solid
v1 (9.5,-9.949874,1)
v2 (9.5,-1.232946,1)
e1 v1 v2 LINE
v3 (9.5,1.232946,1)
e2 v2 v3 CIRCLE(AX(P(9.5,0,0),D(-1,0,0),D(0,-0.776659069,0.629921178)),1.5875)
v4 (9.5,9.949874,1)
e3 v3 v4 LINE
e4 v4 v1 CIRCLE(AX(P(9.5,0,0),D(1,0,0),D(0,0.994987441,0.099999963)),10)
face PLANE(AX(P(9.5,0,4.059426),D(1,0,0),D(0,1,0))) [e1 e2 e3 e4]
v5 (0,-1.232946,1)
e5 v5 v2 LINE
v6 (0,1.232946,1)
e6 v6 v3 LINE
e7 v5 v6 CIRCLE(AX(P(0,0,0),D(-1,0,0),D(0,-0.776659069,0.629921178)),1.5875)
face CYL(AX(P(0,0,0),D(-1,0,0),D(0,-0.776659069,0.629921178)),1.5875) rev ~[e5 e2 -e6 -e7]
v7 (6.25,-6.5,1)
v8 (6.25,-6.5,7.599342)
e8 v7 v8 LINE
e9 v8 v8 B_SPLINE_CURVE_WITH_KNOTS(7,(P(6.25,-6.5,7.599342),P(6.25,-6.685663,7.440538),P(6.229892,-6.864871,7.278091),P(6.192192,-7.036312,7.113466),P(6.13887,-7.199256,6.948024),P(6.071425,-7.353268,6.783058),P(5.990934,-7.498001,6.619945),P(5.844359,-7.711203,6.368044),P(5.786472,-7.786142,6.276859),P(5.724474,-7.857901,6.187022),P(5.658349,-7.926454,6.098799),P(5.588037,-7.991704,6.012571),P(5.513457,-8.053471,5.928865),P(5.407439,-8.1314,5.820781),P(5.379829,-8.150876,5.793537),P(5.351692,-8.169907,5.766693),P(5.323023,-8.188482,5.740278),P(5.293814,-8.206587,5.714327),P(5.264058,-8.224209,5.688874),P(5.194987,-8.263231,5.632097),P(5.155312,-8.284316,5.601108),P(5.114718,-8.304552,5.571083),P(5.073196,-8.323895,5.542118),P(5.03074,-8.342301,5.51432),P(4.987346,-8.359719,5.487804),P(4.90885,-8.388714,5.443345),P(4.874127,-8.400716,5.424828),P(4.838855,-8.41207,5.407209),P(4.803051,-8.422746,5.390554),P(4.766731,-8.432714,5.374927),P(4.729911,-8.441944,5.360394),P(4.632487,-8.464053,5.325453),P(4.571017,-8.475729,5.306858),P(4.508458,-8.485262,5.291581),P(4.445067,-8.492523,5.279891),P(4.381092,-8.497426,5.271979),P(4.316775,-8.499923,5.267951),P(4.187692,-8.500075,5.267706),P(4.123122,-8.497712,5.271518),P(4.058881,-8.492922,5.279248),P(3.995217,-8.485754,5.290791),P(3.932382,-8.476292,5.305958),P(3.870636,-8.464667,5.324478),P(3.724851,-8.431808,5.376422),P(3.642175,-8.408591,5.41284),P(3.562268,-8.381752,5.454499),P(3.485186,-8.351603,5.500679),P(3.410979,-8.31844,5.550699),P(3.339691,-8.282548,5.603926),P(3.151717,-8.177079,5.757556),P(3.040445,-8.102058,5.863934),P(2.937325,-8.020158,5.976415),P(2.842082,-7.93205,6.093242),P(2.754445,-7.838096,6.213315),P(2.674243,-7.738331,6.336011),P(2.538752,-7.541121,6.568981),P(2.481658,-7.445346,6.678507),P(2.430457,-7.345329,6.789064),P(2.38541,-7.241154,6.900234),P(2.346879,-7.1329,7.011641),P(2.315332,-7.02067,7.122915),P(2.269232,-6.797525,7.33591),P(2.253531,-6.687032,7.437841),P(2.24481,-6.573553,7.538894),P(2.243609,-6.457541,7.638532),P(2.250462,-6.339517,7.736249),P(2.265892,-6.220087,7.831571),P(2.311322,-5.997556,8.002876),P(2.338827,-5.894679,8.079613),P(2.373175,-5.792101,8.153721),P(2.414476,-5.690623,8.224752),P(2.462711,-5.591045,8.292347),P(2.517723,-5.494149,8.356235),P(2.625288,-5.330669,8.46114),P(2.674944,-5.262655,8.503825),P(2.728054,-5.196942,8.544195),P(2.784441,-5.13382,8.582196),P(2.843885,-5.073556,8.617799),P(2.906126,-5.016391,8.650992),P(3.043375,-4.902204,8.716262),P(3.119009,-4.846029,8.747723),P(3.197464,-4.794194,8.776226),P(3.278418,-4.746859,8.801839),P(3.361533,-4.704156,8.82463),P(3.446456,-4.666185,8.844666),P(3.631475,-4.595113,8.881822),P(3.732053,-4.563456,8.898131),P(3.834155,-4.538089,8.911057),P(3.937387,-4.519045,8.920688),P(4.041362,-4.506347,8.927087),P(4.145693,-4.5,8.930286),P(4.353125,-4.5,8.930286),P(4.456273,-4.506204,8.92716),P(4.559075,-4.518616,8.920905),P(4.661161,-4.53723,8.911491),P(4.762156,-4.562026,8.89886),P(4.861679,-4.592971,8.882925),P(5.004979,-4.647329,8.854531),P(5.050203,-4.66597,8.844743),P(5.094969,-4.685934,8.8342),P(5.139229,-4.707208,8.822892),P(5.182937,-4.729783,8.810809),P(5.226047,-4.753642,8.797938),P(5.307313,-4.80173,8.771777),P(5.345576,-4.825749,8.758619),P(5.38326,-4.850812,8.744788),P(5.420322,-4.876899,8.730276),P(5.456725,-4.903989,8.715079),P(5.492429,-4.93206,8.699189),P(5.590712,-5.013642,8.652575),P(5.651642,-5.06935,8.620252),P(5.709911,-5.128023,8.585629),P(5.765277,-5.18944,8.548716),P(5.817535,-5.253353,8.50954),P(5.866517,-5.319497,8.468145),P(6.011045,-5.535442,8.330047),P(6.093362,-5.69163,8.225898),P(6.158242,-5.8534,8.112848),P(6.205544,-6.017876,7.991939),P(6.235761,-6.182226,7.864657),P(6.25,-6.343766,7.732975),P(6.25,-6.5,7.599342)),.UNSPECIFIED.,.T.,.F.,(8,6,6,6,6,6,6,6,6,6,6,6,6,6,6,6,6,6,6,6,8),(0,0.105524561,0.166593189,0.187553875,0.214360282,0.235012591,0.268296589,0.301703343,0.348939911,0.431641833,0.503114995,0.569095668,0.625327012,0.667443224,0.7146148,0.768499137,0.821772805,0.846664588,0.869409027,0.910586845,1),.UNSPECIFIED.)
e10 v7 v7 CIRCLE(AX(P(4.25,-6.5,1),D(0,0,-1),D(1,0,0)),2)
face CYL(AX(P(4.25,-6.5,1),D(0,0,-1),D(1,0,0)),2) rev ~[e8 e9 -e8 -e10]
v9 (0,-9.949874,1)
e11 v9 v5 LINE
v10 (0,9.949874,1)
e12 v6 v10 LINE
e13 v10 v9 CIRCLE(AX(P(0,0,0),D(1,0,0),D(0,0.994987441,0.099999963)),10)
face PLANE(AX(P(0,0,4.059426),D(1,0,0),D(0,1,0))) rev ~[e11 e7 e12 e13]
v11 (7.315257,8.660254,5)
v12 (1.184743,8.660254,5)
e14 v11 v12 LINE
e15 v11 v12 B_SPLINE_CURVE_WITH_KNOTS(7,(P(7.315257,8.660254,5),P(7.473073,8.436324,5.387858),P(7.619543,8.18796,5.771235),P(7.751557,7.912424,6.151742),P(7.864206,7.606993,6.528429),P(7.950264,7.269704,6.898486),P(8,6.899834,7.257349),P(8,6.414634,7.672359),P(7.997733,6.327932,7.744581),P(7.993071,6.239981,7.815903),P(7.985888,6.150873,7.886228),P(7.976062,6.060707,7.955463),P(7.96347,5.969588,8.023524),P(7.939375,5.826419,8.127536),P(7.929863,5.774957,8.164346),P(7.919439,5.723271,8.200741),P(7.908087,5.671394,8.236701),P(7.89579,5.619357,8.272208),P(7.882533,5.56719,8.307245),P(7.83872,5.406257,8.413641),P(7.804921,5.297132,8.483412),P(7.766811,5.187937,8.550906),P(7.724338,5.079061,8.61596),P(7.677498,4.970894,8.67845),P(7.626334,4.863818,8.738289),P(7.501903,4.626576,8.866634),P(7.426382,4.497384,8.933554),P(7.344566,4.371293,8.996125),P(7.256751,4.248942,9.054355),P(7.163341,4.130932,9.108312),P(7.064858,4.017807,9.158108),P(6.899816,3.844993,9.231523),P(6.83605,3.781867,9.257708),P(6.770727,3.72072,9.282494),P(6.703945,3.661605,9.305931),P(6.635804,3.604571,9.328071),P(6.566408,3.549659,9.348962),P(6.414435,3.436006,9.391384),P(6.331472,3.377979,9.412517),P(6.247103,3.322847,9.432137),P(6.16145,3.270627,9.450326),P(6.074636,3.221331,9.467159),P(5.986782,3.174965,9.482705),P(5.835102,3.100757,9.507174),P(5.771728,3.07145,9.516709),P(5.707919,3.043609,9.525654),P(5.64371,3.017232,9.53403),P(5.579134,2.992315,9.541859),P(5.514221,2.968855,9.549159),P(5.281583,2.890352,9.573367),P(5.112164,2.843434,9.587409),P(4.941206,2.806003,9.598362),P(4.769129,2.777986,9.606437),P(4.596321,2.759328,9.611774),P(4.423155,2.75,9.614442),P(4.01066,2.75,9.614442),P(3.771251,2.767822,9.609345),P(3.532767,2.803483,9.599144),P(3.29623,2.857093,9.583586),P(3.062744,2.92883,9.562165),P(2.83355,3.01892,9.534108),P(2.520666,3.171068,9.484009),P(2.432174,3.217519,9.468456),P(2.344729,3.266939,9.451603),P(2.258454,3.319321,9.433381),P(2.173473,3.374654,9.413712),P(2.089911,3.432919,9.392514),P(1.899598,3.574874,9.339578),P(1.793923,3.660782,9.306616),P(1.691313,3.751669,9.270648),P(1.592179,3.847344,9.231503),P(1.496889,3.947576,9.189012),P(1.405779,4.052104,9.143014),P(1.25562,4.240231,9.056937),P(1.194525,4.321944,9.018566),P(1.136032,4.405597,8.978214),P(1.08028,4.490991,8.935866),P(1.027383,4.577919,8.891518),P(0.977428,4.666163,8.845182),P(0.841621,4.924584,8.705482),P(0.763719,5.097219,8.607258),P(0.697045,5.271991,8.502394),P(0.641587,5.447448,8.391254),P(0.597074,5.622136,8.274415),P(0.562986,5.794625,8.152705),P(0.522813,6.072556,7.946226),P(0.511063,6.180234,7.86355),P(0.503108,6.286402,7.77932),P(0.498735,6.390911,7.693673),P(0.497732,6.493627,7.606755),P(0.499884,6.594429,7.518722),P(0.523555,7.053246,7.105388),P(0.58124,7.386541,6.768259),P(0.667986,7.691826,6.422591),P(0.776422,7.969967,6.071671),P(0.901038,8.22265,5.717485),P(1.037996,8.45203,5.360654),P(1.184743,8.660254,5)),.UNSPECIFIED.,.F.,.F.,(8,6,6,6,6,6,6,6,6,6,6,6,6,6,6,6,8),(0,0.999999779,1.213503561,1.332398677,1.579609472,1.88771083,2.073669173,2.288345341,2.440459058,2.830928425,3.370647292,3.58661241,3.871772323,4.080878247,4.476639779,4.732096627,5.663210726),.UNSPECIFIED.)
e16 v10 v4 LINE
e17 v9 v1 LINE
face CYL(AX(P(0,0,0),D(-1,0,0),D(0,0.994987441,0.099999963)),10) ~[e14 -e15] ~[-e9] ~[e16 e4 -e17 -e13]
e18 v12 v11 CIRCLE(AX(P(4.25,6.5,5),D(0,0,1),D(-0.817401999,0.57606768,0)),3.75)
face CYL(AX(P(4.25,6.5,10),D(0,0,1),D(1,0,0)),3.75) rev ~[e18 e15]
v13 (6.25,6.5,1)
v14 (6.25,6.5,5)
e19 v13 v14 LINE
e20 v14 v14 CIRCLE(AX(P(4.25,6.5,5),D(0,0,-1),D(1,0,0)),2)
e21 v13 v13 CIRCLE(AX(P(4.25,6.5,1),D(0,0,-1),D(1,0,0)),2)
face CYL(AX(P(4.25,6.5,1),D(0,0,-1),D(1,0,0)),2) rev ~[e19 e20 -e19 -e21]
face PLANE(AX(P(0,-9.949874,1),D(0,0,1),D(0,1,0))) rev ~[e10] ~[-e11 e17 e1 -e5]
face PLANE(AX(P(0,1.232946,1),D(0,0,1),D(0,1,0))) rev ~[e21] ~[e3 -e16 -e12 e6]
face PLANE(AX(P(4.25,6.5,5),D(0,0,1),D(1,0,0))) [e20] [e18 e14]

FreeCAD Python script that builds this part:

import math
import FreeCAD as App
import Part
import Sketcher

V = App.Vector

doc = App.newDocument("Part")
body = doc.addObject("PartDesign::Body", "Body")

# Sketch on YZ plane
sketch1 = body.newObject("Sketcher::SketchObject", "Sketch")
sketch1.AttachmentSupport = (doc.getObject("YZ_Plane"), [""])
sketch1.MapMode = "FlatFace"
sketch1.addGeometry([
    Part.LineSegment(V(1.2, 1, 0), V(9.9, 1, 0)),
    Part.ArcOfCircle(Part.Circle(V(0, 0, 0), V(0, 0, 1), 10), math.radians(6), math.radians(174)),
    Part.LineSegment(V(-9.9, 1, 0), V(-1.2, 1, 0)),
    Part.ArcOfCircle(Part.Circle(V(0, 0, 0), V(0, 0, 1), 1.6), math.radians(39), math.radians(141)),
], False)
sketch1.addConstraint([
    Sketcher.Constraint("Coincident", 0, 2, 1, 1),
    Sketcher.Constraint("Coincident", 1, 2, 2, 1),
    Sketcher.Constraint("Coincident", 2, 2, 3, 2),
    Sketcher.Constraint("Coincident", 3, 1, 0, 1),
    Sketcher.Constraint("Horizontal", 0),
    Sketcher.Constraint("Horizontal", 2),
    Sketcher.Constraint("Coincident", 1, 3, -1, 1),
    Sketcher.Constraint("Coincident", 3, 3, -1, 1),
    Sketcher.Constraint("Horizontal", 0, 2, 1, 2),
    Sketcher.Constraint("Radius", 1, 10.0),
    Sketcher.Constraint("DistanceY", -1, 1, 0, 2, 1.0),
    Sketcher.Constraint("Radius", 3, 1.5875),
])
pad1 = body.newObject("PartDesign::Pad", "Pad")
pad1.Profile = sketch1
pad1.Length = 9.5

# Sketch on XY plane
sketch2 = body.newObject("Sketcher::SketchObject", "Sketch001")
sketch2.AttachmentSupport = (doc.getObject("XY_Plane"), [""])
sketch2.MapMode = "FlatFace"
sketch2.AttachmentOffset = App.Placement(V(0, 0, 1), App.Rotation())
sketch2.addGeometry([
    Part.Circle(V(4.2, -6.5, 0), V(0, 0, 1), 2),
    Part.Circle(V(4.2, 6.5, 0), V(0, 0, 1), 2),
], False)
sketch2.addConstraint([
    Sketcher.Constraint("Equal", 0, 1),
    Sketcher.Constraint("Symmetric", 0, 3, 1, 3, -1),
    Sketcher.Constraint("Diameter", 0, 4.0),
    Sketcher.Constraint("DistanceY", 0, 3, 1, 3, 13.0),
    Sketcher.Constraint("DistanceX", -1, 1, 0, 3, 4.25),
])
pocket1 = body.newObject("PartDesign::Pocket", "Pocket")
pocket1.Profile = sketch2
pocket1.Type = "ThroughAll"
pocket1.Reversed = True

# Sketch on XY plane
sketch3 = body.newObject("Sketcher::SketchObject", "Sketch002")
sketch3.AttachmentSupport = (doc.getObject("XY_Plane"), [""])
sketch3.MapMode = "FlatFace"
sketch3.AttachmentOffset = App.Placement(V(0, 0, 10), App.Rotation())
sketch3.addGeometry(Part.Circle(V(4.2, 6.5, 0), V(0, 0, 1), 3.8), False)
sketch3.addConstraint([
    Sketcher.Constraint("Diameter", 0, 7.5),
    Sketcher.Constraint("DistanceY", -1, 1, 0, 3, 6.5),
    Sketcher.Constraint("DistanceX", -1, 1, 0, 3, 4.25),
])
pocket2 = body.newObject("PartDesign::Pocket", "Pocket001")
pocket2.Profile = sketch3
pocket2.Length = 5

doc.recompute()
